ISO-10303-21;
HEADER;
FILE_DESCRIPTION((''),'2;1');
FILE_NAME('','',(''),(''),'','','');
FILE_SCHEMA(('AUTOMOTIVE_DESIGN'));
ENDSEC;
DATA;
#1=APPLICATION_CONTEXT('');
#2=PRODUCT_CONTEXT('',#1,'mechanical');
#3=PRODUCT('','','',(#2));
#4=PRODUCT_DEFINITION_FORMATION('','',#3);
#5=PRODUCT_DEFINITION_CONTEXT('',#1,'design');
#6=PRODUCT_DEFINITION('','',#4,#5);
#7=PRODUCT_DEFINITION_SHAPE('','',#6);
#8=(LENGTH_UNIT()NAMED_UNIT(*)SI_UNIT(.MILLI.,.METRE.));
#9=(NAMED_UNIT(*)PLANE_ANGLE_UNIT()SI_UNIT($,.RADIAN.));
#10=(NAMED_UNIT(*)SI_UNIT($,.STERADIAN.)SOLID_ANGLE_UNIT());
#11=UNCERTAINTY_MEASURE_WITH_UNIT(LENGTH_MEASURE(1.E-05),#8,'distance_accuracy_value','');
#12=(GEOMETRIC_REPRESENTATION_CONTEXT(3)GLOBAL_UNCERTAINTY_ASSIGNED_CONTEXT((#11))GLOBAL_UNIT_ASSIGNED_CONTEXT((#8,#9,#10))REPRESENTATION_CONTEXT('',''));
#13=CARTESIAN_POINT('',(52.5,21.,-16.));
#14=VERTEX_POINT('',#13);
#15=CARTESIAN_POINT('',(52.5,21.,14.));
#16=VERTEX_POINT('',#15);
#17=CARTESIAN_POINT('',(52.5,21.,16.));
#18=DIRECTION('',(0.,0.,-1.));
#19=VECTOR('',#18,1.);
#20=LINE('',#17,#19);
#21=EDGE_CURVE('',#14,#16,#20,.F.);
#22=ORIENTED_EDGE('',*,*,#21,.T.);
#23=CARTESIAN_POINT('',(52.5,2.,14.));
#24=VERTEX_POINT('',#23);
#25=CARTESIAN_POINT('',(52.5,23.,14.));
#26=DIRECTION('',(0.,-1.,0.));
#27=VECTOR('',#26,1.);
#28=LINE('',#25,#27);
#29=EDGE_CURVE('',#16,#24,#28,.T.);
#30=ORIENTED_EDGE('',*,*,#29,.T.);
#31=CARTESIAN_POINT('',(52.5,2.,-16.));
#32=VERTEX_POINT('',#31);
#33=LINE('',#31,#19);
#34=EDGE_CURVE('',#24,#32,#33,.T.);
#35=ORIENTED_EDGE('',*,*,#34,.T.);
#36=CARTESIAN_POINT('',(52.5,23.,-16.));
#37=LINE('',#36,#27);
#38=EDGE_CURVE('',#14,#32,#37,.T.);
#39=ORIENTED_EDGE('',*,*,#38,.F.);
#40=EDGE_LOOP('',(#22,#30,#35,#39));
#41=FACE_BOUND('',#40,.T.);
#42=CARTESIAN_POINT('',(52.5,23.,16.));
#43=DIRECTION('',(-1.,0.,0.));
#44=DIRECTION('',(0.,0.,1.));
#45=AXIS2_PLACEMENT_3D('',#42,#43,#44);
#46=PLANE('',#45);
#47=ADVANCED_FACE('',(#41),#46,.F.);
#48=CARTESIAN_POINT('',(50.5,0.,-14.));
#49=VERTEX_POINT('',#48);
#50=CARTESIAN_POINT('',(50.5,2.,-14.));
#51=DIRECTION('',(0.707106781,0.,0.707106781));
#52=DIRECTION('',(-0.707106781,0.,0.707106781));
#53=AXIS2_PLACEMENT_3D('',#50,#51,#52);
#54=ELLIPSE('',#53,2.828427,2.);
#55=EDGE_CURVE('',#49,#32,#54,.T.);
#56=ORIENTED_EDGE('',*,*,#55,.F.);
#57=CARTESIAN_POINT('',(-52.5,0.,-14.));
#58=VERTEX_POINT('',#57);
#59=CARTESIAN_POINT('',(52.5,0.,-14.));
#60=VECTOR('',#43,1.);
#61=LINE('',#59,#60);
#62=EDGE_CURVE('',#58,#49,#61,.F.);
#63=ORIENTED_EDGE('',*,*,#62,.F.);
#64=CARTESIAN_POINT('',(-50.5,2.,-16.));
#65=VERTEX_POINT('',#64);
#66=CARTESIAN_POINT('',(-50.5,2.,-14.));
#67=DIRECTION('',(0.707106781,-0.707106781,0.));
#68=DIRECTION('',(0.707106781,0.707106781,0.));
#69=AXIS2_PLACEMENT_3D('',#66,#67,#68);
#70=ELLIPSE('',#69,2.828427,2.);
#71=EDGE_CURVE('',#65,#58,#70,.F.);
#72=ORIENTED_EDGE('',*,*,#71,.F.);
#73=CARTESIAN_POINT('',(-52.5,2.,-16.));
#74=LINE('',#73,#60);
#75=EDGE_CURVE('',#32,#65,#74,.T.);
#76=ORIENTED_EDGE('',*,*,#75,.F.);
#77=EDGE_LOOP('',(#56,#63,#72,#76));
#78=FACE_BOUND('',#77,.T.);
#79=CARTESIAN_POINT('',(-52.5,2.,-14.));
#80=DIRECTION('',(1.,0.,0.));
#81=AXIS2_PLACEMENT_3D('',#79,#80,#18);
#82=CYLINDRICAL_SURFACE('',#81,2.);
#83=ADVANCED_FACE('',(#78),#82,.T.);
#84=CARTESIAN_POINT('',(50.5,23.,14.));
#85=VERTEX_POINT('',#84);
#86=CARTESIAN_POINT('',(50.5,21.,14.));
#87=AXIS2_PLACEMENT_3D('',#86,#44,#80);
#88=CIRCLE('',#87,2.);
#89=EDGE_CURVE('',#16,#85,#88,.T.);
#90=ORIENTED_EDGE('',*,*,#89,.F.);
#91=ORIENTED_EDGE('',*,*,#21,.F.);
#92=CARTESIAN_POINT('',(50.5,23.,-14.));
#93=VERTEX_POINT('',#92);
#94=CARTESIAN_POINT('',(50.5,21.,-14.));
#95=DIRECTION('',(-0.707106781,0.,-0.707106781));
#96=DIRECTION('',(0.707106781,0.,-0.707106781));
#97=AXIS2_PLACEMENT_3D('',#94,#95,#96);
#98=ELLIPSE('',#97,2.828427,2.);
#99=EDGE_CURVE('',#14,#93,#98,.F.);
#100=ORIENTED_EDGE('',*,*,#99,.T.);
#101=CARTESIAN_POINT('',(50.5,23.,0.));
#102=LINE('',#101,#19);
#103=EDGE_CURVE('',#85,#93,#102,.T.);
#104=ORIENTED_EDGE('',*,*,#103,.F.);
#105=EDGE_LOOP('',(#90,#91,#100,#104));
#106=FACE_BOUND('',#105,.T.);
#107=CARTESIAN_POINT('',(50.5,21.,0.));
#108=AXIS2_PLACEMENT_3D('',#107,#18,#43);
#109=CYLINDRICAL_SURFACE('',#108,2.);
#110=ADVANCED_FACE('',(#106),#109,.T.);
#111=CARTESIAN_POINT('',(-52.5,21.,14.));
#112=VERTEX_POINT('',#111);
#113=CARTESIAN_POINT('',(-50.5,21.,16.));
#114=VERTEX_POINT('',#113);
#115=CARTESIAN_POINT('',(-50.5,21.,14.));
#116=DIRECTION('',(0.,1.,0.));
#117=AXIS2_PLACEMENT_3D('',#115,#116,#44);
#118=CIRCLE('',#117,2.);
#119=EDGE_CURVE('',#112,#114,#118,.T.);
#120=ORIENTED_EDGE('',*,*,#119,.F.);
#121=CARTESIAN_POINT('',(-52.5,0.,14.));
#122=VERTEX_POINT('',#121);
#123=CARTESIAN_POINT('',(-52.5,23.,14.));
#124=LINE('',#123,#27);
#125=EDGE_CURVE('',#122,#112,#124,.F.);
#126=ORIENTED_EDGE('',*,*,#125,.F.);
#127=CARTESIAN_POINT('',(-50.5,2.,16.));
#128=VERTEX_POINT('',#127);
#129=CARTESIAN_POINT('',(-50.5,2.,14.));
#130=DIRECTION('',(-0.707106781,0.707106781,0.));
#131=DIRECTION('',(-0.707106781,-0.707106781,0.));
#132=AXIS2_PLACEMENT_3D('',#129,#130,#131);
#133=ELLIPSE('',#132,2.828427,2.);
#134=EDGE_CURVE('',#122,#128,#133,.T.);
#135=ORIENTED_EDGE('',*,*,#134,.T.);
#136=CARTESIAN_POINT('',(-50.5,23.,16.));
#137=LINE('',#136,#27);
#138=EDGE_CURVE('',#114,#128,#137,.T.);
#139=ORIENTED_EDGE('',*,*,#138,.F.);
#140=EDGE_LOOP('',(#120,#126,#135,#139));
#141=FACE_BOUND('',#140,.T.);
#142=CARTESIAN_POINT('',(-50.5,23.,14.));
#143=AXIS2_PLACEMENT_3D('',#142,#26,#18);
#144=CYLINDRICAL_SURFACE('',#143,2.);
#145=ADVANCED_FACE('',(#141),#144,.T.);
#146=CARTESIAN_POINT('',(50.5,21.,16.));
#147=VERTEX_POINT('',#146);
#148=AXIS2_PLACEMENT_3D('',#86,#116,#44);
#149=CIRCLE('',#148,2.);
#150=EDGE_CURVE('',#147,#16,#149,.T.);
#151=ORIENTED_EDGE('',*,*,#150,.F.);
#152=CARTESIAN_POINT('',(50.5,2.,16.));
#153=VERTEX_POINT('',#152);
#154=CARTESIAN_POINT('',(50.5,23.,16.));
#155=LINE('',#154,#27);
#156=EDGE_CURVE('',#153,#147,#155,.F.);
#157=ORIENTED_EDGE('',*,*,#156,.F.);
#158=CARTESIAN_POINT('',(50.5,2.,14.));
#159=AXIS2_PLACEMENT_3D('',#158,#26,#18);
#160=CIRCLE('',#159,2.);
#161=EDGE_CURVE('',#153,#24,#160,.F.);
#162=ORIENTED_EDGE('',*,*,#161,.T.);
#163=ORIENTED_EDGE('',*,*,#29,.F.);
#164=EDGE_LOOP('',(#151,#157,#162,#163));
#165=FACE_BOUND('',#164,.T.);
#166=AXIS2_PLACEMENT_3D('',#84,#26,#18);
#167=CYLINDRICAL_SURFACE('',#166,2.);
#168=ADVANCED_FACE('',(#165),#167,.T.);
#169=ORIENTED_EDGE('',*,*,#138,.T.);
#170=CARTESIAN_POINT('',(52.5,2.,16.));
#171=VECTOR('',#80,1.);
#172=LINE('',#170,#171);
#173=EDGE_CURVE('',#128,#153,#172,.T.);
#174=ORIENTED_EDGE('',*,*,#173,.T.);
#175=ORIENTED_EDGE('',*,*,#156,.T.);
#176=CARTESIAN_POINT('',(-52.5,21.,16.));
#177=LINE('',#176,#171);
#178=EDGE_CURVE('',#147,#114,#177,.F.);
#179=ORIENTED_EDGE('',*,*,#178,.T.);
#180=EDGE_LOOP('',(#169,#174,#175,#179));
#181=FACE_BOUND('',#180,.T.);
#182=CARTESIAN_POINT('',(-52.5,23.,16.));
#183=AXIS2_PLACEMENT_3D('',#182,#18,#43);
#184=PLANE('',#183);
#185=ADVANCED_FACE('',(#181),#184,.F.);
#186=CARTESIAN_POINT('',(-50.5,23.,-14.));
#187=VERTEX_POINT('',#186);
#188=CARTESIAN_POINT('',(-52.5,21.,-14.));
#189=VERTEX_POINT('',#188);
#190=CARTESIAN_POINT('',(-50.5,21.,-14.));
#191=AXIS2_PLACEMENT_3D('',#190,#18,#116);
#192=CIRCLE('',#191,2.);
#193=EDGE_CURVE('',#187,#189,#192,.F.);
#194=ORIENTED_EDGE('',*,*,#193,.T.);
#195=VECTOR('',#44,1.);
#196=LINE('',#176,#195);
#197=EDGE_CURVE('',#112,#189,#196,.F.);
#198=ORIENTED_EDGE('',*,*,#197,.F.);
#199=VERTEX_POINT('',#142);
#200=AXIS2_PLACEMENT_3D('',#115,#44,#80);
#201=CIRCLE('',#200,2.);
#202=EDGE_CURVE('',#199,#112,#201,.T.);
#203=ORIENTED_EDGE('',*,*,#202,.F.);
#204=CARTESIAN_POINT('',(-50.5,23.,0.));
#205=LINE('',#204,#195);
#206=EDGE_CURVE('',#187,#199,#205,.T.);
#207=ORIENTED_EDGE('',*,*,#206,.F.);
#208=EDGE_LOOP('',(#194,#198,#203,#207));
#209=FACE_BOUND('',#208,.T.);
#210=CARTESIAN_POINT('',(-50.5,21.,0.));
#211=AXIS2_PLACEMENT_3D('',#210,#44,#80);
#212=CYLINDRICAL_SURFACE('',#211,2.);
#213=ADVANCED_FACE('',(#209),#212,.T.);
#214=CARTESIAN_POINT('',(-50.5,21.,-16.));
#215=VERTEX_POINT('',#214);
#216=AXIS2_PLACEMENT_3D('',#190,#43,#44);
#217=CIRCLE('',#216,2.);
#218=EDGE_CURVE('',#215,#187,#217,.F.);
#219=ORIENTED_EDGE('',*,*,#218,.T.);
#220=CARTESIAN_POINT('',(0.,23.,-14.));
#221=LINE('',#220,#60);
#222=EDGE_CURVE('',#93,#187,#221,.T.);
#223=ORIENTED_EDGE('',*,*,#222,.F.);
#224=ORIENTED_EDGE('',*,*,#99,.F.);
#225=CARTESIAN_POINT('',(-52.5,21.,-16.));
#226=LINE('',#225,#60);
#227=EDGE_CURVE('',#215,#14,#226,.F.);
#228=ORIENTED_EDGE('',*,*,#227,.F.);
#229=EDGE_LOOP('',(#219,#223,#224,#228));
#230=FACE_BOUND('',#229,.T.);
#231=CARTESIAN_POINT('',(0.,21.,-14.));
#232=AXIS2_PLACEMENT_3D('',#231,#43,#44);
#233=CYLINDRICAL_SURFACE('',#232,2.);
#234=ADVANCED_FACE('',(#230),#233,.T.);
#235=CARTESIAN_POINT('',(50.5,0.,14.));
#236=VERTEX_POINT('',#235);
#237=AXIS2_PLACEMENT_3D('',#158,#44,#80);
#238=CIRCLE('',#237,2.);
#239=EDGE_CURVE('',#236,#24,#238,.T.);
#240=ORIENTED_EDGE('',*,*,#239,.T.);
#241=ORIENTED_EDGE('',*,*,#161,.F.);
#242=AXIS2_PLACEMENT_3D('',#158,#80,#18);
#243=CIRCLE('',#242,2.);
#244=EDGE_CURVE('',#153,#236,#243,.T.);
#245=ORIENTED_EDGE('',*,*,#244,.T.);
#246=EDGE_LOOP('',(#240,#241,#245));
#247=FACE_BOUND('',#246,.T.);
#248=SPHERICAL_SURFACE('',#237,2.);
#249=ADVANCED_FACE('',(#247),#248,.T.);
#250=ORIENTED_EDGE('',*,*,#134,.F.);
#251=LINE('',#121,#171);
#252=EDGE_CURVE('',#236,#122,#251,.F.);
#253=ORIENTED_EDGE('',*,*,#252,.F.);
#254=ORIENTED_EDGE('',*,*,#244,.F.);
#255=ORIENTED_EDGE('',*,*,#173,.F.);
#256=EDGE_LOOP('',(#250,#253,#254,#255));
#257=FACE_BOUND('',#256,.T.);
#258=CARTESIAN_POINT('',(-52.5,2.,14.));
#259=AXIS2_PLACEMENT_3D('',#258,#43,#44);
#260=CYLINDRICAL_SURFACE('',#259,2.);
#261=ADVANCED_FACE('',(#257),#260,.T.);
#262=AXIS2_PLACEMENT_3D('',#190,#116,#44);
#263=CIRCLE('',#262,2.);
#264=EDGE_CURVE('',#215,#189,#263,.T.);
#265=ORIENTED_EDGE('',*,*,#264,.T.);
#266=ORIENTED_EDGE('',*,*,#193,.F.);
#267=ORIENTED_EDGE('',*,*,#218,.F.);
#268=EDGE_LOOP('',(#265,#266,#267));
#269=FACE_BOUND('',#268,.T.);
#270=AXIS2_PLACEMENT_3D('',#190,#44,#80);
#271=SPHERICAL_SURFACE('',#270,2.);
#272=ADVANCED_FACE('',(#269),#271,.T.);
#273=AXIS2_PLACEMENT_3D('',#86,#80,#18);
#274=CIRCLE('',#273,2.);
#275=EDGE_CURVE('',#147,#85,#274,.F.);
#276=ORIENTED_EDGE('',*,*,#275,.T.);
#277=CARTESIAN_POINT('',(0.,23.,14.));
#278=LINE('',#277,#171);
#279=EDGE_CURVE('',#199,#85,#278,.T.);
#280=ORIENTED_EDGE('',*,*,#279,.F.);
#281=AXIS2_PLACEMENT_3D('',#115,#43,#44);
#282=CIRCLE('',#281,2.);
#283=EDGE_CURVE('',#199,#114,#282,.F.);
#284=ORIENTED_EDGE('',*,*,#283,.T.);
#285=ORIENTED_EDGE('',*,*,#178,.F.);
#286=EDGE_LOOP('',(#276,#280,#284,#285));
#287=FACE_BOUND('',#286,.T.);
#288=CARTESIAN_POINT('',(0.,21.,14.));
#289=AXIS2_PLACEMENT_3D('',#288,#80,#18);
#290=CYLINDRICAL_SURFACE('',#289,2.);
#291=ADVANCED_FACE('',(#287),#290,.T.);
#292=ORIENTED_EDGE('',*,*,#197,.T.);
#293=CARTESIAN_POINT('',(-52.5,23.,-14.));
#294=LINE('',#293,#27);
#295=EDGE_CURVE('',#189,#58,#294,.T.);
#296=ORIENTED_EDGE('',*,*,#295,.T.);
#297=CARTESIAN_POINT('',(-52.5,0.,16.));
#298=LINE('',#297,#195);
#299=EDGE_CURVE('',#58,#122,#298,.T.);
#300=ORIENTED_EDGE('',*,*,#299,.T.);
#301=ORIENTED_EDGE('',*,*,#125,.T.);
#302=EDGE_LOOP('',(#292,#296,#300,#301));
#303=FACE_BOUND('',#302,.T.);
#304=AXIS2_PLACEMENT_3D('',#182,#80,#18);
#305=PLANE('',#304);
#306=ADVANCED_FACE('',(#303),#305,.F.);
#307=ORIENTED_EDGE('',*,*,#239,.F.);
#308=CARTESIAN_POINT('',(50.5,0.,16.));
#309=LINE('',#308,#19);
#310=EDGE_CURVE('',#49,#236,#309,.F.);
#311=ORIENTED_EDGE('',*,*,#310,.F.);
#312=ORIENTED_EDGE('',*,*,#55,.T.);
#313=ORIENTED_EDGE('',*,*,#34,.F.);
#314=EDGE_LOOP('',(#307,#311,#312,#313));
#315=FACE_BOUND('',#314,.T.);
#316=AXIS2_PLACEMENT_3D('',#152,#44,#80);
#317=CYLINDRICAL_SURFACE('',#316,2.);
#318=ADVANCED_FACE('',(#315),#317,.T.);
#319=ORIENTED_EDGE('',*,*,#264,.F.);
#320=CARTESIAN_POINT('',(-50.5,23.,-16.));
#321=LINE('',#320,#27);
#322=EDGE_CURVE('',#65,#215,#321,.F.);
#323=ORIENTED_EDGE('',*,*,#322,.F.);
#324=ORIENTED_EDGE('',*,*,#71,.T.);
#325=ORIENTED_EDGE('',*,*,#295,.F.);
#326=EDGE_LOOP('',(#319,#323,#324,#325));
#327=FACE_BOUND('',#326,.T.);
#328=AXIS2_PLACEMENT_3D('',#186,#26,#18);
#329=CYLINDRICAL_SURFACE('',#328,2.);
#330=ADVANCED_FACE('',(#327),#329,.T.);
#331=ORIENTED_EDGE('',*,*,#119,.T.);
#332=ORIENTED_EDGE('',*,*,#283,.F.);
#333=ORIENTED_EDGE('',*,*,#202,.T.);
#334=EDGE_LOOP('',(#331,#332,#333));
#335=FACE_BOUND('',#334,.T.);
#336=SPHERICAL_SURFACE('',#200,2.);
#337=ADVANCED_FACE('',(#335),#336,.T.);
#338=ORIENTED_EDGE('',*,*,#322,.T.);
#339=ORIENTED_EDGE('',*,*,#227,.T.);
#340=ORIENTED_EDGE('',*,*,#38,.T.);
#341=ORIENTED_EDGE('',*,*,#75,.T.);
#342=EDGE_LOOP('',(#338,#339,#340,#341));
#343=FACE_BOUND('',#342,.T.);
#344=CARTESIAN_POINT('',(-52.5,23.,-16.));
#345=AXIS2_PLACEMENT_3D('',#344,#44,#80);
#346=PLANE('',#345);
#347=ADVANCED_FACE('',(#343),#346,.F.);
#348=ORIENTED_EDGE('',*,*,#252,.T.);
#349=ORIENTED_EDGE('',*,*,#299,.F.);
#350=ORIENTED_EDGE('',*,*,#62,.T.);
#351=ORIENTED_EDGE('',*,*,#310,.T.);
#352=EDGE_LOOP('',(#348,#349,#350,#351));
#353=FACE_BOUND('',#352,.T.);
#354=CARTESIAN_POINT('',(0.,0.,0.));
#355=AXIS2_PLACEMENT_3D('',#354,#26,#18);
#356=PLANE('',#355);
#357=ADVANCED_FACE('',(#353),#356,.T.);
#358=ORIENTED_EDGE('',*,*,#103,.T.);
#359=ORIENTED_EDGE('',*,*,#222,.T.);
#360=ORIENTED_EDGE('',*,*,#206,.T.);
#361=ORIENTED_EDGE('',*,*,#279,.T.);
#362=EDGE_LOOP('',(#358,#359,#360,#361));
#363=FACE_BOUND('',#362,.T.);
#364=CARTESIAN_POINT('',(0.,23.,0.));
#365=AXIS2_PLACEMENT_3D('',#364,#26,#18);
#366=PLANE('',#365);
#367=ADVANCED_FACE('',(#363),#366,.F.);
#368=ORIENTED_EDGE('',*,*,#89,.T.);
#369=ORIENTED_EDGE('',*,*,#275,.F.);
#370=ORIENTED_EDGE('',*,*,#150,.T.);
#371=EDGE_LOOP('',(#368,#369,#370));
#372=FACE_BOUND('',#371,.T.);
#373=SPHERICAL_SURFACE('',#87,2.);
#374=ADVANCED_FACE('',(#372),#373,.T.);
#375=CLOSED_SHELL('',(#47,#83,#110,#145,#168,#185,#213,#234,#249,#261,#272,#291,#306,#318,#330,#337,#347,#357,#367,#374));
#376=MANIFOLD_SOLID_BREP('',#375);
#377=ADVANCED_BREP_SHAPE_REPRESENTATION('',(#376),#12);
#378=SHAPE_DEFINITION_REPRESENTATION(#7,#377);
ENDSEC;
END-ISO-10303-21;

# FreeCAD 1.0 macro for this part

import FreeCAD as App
import Part
import Sketcher
from FreeCAD import Vector
Q = App.Units.Quantity


def edges_at(feature, points):
    """Names of the edges that pass closest to the given points."""
    edges = feature.Shape.Edges
    near = lambda p: min(range(len(edges)), key=lambda i: edges[i].distToShape(Part.Vertex(*p))[0])
    return sorted({f"Edge{near(p) + 1}" for p in points})


def add_polygon(sketch, points):
    """Adds a closed chain of lines whose ends are joined by coincident constraints."""
    first, n = sketch.GeometryCount, len(points)
    for a, b in zip(points, points[1:] + points[:1]):
        sketch.addGeometry(Part.LineSegment(App.Vector(*a, 0), App.Vector(*b, 0)), False)
    for i in range(n):
        sketch.addConstraint(Sketcher.Constraint("Coincident", first + i, 2, first + (i + 1) % n, 1))

doc = App.newDocument("Part")
body = doc.addObject("PartDesign::Body", "Body")

sketch1 = body.newObject("Sketcher::SketchObject", "Sketch")
sketch1.AttachmentSupport = (doc.getObject("XZ_Plane"), [""])
sketch1.MapMode = "FlatFace"
add_polygon(sketch1, [(-52.5, -16), (-52.5, 16), (52.5, 16), (52.5, -16)])
sketch1.addConstraint(Sketcher.Constraint("Vertical", 0))
sketch1.addConstraint(Sketcher.Constraint("Horizontal", 1))
sketch1.addConstraint(Sketcher.Constraint("Vertical", 2))
sketch1.addConstraint(Sketcher.Constraint("Horizontal", 3))
sketch1.addConstraint(Sketcher.Constraint("Symmetric", 0, 2, 2, 2, -1, 1))
sketch1.addConstraint(Sketcher.Constraint("DistanceX", 1, 1, 1, 2, Q("105 mm")))
sketch1.addConstraint(Sketcher.Constraint("DistanceY", 0, 1, 0, 2, Q("32 mm")))
pad1 = body.newObject("PartDesign::Pad", "Pad")
pad1.Profile = sketch1
pad1.Length = 23
pad1.Reversed = True
doc.recompute()

fillet = body.newObject("PartDesign::Fillet", "Fillet")
fillet.Base = (pad1, edges_at(pad1, [
    (-52.5, 23, 0),
    (0, 23, 16),
    (52.5, 23, 0),
    (0, 0, 16),
    (0, 0, -16),
    (52.5, 0, 0),
    (0, 23, -16),
    (52.5, 11.5, 16),
    (-52.5, 11.5, 16),
    (-52.5, 11.5, -16),
]))
fillet.Radius = 2

doc.recompute()
